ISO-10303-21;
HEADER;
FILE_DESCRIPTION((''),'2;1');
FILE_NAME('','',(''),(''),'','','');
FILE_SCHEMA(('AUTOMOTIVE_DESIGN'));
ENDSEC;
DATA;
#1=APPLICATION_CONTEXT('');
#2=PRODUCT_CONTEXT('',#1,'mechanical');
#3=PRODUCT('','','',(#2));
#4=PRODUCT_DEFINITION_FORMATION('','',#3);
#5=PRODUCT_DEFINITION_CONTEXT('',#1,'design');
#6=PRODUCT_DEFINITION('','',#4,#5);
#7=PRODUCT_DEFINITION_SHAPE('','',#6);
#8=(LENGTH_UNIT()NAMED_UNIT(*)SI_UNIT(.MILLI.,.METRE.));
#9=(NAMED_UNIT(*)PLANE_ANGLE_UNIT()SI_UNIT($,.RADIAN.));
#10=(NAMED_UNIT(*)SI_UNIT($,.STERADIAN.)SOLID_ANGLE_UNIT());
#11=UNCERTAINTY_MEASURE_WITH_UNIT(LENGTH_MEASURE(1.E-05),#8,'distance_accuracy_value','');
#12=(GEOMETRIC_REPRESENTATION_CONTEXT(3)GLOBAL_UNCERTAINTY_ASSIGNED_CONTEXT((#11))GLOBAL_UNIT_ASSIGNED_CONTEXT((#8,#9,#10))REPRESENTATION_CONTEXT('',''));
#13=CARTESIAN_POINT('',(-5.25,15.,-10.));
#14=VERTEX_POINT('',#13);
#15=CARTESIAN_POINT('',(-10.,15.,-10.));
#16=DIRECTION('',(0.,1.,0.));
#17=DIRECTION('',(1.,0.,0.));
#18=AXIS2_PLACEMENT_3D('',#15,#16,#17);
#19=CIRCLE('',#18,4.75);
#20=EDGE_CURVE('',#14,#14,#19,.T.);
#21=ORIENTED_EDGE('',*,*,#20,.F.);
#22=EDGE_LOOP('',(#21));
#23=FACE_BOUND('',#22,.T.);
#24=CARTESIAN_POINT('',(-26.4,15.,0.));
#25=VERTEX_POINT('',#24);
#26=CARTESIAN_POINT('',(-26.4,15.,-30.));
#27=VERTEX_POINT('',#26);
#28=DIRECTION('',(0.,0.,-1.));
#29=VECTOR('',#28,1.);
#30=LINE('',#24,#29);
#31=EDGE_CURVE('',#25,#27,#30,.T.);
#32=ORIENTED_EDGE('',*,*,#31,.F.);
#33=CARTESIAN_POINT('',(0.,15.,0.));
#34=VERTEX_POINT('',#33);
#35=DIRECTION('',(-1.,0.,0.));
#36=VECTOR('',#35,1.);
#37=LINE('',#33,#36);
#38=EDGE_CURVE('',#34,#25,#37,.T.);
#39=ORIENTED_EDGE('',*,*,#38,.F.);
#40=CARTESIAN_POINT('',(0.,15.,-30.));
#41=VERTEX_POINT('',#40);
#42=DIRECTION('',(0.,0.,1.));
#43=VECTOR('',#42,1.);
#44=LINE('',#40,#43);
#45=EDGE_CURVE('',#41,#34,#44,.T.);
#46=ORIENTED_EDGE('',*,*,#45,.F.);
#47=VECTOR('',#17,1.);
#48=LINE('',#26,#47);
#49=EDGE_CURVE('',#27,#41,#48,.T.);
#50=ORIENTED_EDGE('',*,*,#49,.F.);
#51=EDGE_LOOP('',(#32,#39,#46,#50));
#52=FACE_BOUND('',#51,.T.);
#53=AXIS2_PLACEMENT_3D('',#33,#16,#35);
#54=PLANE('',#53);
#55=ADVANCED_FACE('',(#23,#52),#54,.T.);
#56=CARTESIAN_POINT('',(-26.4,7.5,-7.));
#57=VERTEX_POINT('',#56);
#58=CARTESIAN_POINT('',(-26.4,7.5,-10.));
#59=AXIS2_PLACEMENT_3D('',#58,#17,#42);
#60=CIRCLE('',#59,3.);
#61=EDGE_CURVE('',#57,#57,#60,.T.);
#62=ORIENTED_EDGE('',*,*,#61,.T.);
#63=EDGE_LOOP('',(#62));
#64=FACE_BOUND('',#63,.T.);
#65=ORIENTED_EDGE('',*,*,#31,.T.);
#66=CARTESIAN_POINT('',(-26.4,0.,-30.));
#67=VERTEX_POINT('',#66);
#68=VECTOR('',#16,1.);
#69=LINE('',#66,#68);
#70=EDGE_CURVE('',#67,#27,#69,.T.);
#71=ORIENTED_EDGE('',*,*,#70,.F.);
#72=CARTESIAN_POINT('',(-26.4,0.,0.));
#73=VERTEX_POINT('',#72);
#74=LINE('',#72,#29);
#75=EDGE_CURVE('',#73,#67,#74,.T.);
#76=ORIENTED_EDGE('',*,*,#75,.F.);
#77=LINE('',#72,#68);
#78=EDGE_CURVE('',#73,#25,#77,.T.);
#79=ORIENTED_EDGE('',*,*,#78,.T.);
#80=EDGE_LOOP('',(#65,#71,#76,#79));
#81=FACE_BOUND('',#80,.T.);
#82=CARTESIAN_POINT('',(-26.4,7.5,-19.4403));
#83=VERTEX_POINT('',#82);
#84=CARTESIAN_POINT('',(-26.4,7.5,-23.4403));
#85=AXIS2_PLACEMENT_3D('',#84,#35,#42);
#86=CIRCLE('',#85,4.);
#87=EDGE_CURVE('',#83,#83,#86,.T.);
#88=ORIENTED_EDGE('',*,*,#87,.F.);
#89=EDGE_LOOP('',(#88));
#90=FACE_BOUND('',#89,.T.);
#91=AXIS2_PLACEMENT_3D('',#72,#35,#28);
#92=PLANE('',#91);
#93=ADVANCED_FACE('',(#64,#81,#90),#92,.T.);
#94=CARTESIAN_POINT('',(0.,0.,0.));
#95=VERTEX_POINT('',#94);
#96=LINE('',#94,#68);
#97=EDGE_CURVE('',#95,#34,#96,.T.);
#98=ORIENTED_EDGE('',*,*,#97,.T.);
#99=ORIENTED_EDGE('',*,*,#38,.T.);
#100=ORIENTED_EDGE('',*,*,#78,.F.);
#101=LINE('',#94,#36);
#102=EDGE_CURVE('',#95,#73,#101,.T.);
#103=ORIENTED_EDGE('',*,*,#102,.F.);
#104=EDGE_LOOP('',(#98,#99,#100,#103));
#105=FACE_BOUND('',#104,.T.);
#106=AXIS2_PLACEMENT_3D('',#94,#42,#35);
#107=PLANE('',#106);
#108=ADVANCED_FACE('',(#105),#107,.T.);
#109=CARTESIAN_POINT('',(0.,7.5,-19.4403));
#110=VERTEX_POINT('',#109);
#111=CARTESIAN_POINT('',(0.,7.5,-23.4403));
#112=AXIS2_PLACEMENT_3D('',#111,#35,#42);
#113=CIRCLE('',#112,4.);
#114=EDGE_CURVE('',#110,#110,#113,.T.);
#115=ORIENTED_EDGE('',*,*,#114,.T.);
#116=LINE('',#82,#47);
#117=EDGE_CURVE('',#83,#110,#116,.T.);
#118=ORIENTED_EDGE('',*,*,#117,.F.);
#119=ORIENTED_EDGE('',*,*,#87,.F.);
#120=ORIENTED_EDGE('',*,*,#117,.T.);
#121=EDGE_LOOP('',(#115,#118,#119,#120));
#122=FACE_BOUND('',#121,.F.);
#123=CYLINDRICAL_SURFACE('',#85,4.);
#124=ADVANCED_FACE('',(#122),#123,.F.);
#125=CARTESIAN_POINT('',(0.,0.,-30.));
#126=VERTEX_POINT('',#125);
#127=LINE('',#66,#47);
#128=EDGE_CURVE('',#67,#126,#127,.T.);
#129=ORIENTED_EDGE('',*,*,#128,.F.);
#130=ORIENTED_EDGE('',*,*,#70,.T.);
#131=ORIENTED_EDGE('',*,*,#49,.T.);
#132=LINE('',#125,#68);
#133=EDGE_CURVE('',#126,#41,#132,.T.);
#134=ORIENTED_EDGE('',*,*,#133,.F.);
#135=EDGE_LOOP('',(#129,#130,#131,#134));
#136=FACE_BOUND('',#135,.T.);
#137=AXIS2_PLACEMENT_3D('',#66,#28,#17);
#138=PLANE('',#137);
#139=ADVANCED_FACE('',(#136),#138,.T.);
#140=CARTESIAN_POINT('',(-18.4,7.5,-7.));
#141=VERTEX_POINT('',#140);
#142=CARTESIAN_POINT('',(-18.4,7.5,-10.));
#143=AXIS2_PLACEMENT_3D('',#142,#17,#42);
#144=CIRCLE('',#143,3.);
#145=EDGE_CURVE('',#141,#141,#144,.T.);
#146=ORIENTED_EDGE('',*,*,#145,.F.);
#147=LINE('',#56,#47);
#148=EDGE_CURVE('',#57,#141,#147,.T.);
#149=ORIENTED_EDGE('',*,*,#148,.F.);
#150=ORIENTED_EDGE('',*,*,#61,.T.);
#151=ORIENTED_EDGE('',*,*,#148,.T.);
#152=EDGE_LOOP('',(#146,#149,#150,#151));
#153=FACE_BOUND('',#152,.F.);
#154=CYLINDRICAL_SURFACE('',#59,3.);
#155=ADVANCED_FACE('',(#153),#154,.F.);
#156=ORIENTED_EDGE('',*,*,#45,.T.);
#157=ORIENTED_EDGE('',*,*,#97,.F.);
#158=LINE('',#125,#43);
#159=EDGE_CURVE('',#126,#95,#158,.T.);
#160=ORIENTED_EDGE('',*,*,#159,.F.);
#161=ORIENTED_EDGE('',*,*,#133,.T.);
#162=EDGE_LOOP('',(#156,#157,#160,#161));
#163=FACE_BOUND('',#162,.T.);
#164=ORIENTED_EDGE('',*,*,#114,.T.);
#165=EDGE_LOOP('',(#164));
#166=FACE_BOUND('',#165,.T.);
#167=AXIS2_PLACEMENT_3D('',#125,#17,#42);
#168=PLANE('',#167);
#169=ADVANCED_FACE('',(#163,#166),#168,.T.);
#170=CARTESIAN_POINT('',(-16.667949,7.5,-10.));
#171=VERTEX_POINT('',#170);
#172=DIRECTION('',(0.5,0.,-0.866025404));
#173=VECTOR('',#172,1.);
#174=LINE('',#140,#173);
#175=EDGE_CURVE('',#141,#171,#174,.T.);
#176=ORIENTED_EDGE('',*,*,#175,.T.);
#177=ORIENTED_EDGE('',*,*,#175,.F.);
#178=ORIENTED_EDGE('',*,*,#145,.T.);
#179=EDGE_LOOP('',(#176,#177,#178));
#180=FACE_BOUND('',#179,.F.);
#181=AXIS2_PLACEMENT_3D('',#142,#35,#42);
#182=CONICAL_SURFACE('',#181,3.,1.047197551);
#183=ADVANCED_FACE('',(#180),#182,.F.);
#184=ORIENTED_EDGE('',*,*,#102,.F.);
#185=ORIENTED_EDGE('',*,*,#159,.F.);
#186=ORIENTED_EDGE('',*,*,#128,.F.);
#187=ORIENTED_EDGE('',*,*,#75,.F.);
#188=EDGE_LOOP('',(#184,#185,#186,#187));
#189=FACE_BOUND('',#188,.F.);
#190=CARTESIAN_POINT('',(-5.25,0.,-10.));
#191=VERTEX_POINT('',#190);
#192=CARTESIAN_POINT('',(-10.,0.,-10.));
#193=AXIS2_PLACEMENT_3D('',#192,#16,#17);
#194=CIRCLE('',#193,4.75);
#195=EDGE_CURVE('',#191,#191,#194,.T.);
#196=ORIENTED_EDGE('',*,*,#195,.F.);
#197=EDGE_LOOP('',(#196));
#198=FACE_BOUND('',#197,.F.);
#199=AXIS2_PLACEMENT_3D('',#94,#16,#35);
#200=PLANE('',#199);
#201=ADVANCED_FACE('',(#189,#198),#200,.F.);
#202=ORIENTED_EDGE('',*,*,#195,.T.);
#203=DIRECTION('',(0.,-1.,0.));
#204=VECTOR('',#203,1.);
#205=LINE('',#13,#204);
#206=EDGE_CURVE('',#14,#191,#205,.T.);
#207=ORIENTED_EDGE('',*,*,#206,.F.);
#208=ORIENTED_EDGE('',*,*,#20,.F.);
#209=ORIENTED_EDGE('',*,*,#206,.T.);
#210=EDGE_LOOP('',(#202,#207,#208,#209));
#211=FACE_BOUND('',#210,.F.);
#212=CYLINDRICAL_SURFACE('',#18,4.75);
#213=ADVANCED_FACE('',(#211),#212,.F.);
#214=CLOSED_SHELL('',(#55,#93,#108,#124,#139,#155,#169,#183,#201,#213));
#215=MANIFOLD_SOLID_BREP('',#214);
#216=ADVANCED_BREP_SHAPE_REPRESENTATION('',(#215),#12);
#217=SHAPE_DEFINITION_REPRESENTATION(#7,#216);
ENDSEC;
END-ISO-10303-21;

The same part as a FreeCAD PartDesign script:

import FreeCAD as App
import Part
import Sketcher
Q = App.Units.Quantity

doc = App.newDocument("Part")
body = doc.addObject("PartDesign::Body", "Body")

# Sketch on XZ plane
sketch1 = doc.addObject("Sketcher::SketchObject", "Sketch")
body.addObject(sketch1)
sketch1.AttachmentSupport = (doc.XZ_Plane, [""])
sketch1.MapMode = "FlatFace"
sketch1.addGeometry(Part.LineSegment(App.Vector(-26, 0, 0), App.Vector(0, 0, 0)), False)
sketch1.addGeometry(Part.LineSegment(App.Vector(0, 0, 0), App.Vector(0, -30, 0)), False)
sketch1.addGeometry(Part.LineSegment(App.Vector(0, -30, 0), App.Vector(-26, -30, 0)), False)
sketch1.addGeometry(Part.LineSegment(App.Vector(-26, -30, 0), App.Vector(-26, 0, 0)), False)
sketch1.addConstraint(Sketcher.Constraint("Coincident", 0, 2, 1, 1))
sketch1.addConstraint(Sketcher.Constraint("Coincident", 1, 2, 2, 1))
sketch1.addConstraint(Sketcher.Constraint("Coincident", 2, 2, 3, 1))
sketch1.addConstraint(Sketcher.Constraint("Coincident", 3, 2, 0, 1))
sketch1.addConstraint(Sketcher.Constraint("Horizontal", 0))
sketch1.addConstraint(Sketcher.Constraint("Vertical", 1))
sketch1.addConstraint(Sketcher.Constraint("Horizontal", 2))
sketch1.addConstraint(Sketcher.Constraint("Vertical", 3))
sketch1.addConstraint(Sketcher.Constraint("Coincident", 0, 2, -1, 1))
sketch1.addConstraint(Sketcher.Constraint("DistanceY", 1, 2, 1, 1, Q("30 mm")))
sketch1.addConstraint(Sketcher.Constraint("DistanceX", 0, 1, 0, 2, Q("26.4 mm")))
pad1 = doc.addObject("PartDesign::Pad", "Pad")
body.addObject(pad1)
pad1.Profile = sketch1
pad1.Length = 15
pad1.Reversed = True

# Sketch on XZ plane
sketch2 = doc.addObject("Sketcher::SketchObject", "Sketch001")
body.addObject(sketch2)
sketch2.AttachmentSupport = (doc.XZ_Plane, [""])
sketch2.MapMode = "FlatFace"
sketch2.AttachmentOffset = App.Placement(App.Vector(0, 0, -15), App.Rotation())
sketch2.addGeometry(Part.Circle(App.Vector(-10, -10, 0), App.Vector(0, 0, 1), 4.8), False)
sketch2.addConstraint(Sketcher.Constraint("Diameter", 0, Q("9.5 mm")))
sketch2.addConstraint(Sketcher.Constraint("DistanceX", 0, 3, -1, 1, Q("10 mm")))
sketch2.addConstraint(Sketcher.Constraint("DistanceY", 0, 3, -1, 1, Q("10 mm")))
pocket1 = doc.addObject("PartDesign::Pocket", "Pocket")
body.addObject(pocket1)
pocket1.Profile = sketch2
pocket1.Length = 15
pocket1.Reversed = True

# Sketch on YZ plane
sketch3 = doc.addObject("Sketcher::SketchObject", "Sketch002")
body.addObject(sketch3)
sketch3.AttachmentSupport = (doc.YZ_Plane, [""])
sketch3.MapMode = "FlatFace"
sketch3.AttachmentOffset = App.Placement(App.Vector(0, 0, -26.4), App.Rotation())
sketch3.addGeometry(Part.Circle(App.Vector(7.5, -10, 0), App.Vector(0, 0, 1), 3), False)
sketch3.addConstraint(Sketcher.Constraint("Diameter", 0, Q("6 mm")))
sketch3.addConstraint(Sketcher.Constraint("DistanceY", 0, 3, -1, 1, Q("10 mm")))
sketch3.addConstraint(Sketcher.Constraint("DistanceX", -1, 1, 0, 3, Q("7.5 mm")))
doc.recompute()
hole = doc.addObject("PartDesign::Hole", "Hole")
body.addObject(hole)
hole.Profile = sketch3
hole.ThreadType = "None"
hole.Diameter = 6
hole.DepthType = "Dimension"
hole.Depth = 8
hole.DrillPoint = "Angled"
hole.DrillPointAngle = 120
hole.Reversed = True

# Sketch on YZ plane
sketch4 = doc.addObject("Sketcher::SketchObject", "Sketch003")
body.addObject(sketch4)
sketch4.AttachmentSupport = (doc.YZ_Plane, [""])
sketch4.MapMode = "FlatFace"
sketch4.AttachmentOffset = App.Placement(App.Vector(0, 0, -26.4), App.Rotation())
sketch4.addGeometry(Part.Circle(App.Vector(7.5, -23.4, 0), App.Vector(0, 0, 1), 4), False)
sketch4.addConstraint(Sketcher.Constraint("Diameter", 0, Q("8 mm")))
sketch4.addConstraint(Sketcher.Constraint("DistanceX", -1, 1, 0, 3, Q("7.5 mm")))
sketch4.addConstraint(Sketcher.Constraint("DistanceY", 0, 3, -1, 1, Q("23.4403 mm")))
pocket2 = doc.addObject("PartDesign::Pocket", "Pocket001")
body.addObject(pocket2)
pocket2.Profile = sketch4
pocket2.Length = 32.75
pocket2.Reversed = True

doc.recompute()
